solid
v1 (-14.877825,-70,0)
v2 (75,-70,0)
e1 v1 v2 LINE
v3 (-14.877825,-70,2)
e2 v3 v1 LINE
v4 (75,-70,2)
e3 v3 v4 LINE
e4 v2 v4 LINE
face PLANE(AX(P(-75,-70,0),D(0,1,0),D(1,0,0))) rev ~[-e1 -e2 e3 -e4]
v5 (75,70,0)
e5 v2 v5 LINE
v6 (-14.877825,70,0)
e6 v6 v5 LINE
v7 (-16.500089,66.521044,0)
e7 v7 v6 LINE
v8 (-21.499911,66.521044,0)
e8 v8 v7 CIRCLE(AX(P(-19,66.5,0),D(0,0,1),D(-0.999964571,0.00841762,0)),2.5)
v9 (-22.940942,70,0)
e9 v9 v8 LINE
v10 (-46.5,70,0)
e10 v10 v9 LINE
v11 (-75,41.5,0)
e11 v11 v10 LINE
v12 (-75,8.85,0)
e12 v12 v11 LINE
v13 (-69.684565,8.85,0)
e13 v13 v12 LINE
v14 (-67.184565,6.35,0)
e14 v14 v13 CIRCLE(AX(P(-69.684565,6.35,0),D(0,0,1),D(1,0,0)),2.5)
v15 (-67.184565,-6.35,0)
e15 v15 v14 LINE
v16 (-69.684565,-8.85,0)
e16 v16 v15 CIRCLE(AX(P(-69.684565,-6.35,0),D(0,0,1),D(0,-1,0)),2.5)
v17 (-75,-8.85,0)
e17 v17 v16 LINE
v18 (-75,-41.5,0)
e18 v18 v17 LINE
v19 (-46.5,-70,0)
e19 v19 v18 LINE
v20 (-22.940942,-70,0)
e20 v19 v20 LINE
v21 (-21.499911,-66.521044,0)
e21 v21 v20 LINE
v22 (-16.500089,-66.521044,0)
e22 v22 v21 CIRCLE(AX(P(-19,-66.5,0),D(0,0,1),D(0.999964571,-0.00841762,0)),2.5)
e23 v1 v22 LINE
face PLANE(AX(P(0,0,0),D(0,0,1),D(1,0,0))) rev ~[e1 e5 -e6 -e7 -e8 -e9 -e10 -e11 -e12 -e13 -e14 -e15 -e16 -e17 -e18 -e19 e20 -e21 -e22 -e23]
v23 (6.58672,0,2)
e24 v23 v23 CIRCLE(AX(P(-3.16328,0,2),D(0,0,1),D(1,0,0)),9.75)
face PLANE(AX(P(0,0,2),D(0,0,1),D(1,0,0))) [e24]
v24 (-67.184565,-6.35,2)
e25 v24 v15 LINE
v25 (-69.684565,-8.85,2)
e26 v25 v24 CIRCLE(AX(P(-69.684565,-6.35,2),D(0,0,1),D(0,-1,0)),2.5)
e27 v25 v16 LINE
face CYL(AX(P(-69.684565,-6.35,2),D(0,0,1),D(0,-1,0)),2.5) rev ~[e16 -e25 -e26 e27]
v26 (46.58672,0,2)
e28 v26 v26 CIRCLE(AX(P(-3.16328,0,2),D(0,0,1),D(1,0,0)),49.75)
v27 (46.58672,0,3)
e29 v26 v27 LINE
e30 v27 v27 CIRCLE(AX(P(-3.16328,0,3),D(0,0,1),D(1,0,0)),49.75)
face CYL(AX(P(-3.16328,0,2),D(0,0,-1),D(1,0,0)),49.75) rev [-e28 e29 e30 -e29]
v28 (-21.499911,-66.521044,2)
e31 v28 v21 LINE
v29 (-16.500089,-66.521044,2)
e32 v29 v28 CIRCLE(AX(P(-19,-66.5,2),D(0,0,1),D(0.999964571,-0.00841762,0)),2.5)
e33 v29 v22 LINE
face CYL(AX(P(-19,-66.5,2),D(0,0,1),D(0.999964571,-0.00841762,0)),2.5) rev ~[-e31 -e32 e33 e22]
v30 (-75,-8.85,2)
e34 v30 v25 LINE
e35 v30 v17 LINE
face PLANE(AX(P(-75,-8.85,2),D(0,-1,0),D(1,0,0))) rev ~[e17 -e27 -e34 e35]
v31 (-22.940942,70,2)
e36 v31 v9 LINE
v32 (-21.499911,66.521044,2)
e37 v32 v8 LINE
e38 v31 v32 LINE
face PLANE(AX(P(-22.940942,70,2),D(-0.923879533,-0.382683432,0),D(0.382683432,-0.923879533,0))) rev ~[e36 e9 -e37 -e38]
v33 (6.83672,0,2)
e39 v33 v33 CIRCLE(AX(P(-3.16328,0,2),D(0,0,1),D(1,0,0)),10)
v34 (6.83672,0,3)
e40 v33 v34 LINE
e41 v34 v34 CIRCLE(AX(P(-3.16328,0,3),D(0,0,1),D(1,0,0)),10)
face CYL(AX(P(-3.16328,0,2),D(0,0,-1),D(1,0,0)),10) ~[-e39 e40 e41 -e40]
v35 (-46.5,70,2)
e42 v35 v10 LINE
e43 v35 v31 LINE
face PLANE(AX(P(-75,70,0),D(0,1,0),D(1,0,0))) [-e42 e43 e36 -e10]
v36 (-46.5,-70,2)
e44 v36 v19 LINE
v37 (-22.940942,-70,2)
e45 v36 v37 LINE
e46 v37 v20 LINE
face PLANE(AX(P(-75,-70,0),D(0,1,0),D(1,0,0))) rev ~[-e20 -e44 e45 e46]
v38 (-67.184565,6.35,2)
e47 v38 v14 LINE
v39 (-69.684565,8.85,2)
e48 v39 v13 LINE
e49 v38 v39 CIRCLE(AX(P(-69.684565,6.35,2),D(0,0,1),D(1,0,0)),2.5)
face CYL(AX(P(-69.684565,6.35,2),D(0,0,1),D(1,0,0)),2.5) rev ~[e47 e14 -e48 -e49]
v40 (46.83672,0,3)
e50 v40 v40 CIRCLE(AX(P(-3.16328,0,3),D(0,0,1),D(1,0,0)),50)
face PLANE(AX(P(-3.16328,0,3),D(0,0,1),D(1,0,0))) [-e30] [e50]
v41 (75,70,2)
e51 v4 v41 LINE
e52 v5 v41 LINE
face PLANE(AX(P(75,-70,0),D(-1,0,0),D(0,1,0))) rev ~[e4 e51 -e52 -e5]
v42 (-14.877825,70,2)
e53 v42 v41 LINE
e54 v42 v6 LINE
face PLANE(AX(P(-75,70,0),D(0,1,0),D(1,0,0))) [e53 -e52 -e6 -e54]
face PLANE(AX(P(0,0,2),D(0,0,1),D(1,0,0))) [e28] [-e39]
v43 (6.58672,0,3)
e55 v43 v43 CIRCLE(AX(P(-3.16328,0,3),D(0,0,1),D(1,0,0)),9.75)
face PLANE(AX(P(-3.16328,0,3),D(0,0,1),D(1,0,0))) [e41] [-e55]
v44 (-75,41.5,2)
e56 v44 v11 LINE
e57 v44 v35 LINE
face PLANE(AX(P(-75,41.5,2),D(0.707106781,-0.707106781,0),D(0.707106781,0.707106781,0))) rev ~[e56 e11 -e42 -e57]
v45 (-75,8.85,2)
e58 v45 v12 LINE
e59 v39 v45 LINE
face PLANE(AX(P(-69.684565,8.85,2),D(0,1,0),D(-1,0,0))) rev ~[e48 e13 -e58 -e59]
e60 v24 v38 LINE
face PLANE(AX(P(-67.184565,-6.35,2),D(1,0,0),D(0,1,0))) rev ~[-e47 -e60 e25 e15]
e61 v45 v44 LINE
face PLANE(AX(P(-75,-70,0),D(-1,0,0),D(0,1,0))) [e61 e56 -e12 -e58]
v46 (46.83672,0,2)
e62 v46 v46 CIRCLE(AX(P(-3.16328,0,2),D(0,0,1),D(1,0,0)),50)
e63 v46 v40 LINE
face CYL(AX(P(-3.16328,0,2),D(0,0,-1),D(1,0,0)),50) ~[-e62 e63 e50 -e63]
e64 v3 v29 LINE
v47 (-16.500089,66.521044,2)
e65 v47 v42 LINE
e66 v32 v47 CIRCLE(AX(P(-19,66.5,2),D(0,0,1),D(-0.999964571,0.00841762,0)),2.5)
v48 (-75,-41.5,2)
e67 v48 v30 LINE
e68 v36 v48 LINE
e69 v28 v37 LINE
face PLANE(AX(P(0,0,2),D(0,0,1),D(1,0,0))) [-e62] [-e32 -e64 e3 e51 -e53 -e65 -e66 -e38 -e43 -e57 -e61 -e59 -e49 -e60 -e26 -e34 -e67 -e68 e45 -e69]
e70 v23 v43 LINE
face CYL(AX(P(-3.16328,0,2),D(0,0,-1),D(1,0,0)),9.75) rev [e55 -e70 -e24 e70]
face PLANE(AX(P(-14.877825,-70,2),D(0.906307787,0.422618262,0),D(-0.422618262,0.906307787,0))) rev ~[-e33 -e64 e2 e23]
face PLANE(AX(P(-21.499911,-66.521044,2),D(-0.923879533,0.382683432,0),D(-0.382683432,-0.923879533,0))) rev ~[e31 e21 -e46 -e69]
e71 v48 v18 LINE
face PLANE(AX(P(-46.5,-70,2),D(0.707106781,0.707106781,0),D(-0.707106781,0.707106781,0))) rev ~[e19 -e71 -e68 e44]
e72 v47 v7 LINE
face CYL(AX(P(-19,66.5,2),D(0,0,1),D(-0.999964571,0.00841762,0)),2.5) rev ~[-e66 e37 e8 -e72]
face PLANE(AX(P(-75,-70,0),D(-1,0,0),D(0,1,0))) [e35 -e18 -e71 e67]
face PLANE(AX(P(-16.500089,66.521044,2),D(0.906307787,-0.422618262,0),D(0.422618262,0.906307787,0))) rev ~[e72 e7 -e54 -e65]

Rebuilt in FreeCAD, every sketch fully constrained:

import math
import FreeCAD as App
import Part
import Sketcher

V = App.Vector
Q = App.Units.Quantity

doc = App.newDocument("Part")
body = doc.addObject("PartDesign::Body", "Body")

# Sketch on XY plane
sketch1 = body.newObject("Sketcher::SketchObject", "Sketch")
sketch1.AttachmentSupport = (doc.getObject("XY_Plane"), [""])
sketch1.MapMode = "FlatFace"
sketch1.addGeometry([
    Part.LineSegment(V(-75, 70, 0), V(-75, -70, 0)),
    Part.LineSegment(V(-75, -70, 0), V(75, -70, 0)),
    Part.LineSegment(V(75, -70, 0), V(75, 70, 0)),
    Part.LineSegment(V(75, 70, 0), V(-75, 70, 0)),
], False)
sketch1.addConstraint([
    Sketcher.Constraint("Coincident", 0, 2, 1, 1),
    Sketcher.Constraint("Coincident", 1, 2, 2, 1),
    Sketcher.Constraint("Coincident", 2, 2, 3, 1),
    Sketcher.Constraint("Coincident", 3, 2, 0, 1),
    Sketcher.Constraint("Vertical", 0),
    Sketcher.Constraint("Horizontal", 1),
    Sketcher.Constraint("Vertical", 2),
    Sketcher.Constraint("Horizontal", 3),
    Sketcher.Constraint("Symmetric", 0, 2, 2, 2, -1, 1),
    Sketcher.Constraint("DistanceX", 1, 1, 1, 2, 150.0),
    Sketcher.Constraint("DistanceY", 0, 2, 0, 1, 140.0),
])
pad1 = body.newObject("PartDesign::Pad", "Pad")
pad1.Profile = sketch1
pad1.Length = 2

# Sketch on XY plane
sketch2 = body.newObject("Sketcher::SketchObject", "Sketch001")
sketch2.AttachmentSupport = (doc.getObject("XY_Plane"), [""])
sketch2.MapMode = "FlatFace"
sketch2.AttachmentOffset = App.Placement(V(0, 0, 2), App.Rotation())
sketch2.addGeometry([
    Part.LineSegment(V(-75, 70, 0), V(-75, 41.5, 0)),  # 0
    Part.LineSegment(V(-75, 41.5, 0), V(-46.5, 70, 0)),  # 1
    Part.LineSegment(V(-46.5, 70, 0), V(-75, 70, 0)),  # 2
    Part.LineSegment(V(-46.5, -70, 0), V(-75, -41.5, 0)),  # 3
    Part.LineSegment(V(-75, -41.5, 0), V(-75, -70, 0)),  # 4
    Part.LineSegment(V(-75, -70, 0), V(-46.5, -70, 0)),  # 5
    Part.LineSegment(V(-67.184565, -6.35, 0), V(-67.184565, 6.35, 0)),  # 6
    Part.ArcOfCircle(Part.Circle(V(-69.684565, 6.35, 0), V(0, 0, 1), 2.5), math.radians(0), math.radians(90)),  # 7
    Part.LineSegment(V(-69.684565, 8.85, 0), V(-75, 8.85, 0)),  # 8
    Part.LineSegment(V(-75, 8.85, 0), V(-75, -8.85, 0)),  # 9
    Part.LineSegment(V(-75, -8.85, 0), V(-69.684565, -8.85, 0)),  # 10
    Part.ArcOfCircle(Part.Circle(V(-69.684565, -6.35, 0), V(0, 0, 1), 2.5), math.radians(-90), math.radians(0)),  # 11
    Part.LineSegment(V(-21.499911, -66.521044, 0), V(-22.940942, -70, 0)),  # 12
    Part.LineSegment(V(-22.940942, -70, 0), V(-14.877825, -70, 0)),  # 13
    Part.LineSegment(V(-14.877825, -70, 0), V(-16.500089, -66.521044, 0)),  # 14
    Part.ArcOfCircle(Part.Circle(V(-19, -66.5, 0), V(0, 0, 1), 2.5), math.radians(-0.4823), math.radians(180.4823)),  # 15
    Part.LineSegment(V(-14.877825, 70, 0), V(-22.940942, 70, 0)),  # 16
    Part.LineSegment(V(-22.940942, 70, 0), V(-21.499911, 66.521044, 0)),  # 17
    Part.ArcOfCircle(Part.Circle(V(-19, 66.5, 0), V(0, 0, 1), 2.5), math.radians(179.5177), math.radians(360.4823)),  # 18
    Part.LineSegment(V(-16.500089, 66.521044, 0), V(-14.877825, 70, 0)),  # 19
], False)
sketch2.addConstraint([
    Sketcher.Constraint("Coincident", 0, 2, 1, 1),
    Sketcher.Constraint("Coincident", 1, 2, 2, 1),
    Sketcher.Constraint("Coincident", 2, 2, 0, 1),
    Sketcher.Constraint("Coincident", 3, 2, 4, 1),
    Sketcher.Constraint("Coincident", 4, 2, 5, 1),
    Sketcher.Constraint("Coincident", 5, 2, 3, 1),
    Sketcher.Constraint("Tangent", 6, 2, 7, 1),
    Sketcher.Constraint("Tangent", 7, 2, 8, 1),
    Sketcher.Constraint("Coincident", 8, 2, 9, 1),
    Sketcher.Constraint("Coincident", 9, 2, 10, 1),
    Sketcher.Constraint("Tangent", 10, 2, 11, 1),
    Sketcher.Constraint("Tangent", 11, 2, 6, 1),
    Sketcher.Constraint("Coincident", 12, 2, 13, 1),
    Sketcher.Constraint("Coincident", 13, 2, 14, 1),
    Sketcher.Constraint("Coincident", 14, 2, 15, 1),
    Sketcher.Constraint("Coincident", 15, 2, 12, 1),
    Sketcher.Constraint("Coincident", 16, 2, 17, 1),
    Sketcher.Constraint("Coincident", 17, 2, 18, 1),
    Sketcher.Constraint("Coincident", 18, 2, 19, 1),
    Sketcher.Constraint("Coincident", 19, 2, 16, 1),
    Sketcher.Constraint("Vertical", 0),
    Sketcher.Constraint("Horizontal", 2),
    Sketcher.Constraint("Vertical", 4),
    Sketcher.Constraint("Horizontal", 5),
    Sketcher.Constraint("Vertical", 6),
    Sketcher.Constraint("Horizontal", 8),
    Sketcher.Constraint("Vertical", 9),
    Sketcher.Constraint("Horizontal", 10),
    Sketcher.Constraint("Horizontal", 13),
    Sketcher.Constraint("Horizontal", 16),
    Sketcher.Constraint("Equal", 7, 11),
    Sketcher.Constraint("Equal", 11, 15),
    Sketcher.Constraint("Equal", 15, 18),
    Sketcher.Constraint("Symmetric", 15, 3, 18, 3, -1),
    Sketcher.Constraint("Symmetric", 0, 2, 3, 2, -1),
    Sketcher.Constraint("Symmetric", 1, 2, 5, 2, -1),
    Sketcher.Constraint("Symmetric", 12, 2, 16, 2, -1),
    Sketcher.Constraint("Perpendicular", 1, 3),
    Sketcher.Constraint("Horizontal", 5, 2, 12, 2),
    Sketcher.Constraint("Horizontal", 14, 2, 15, 2),
    Sketcher.Constraint("Horizontal", 17, 2, 18, 2),
    Sketcher.Constraint("Vertical", 4, 2, 8, 2),
    Sketcher.Constraint("Vertical", 15, 2, 17, 2),
    Sketcher.Constraint("Vertical", 13, 2, 19, 2),
    Sketcher.Constraint("Radius", 7, 2.5),
    Sketcher.Constraint("Angle", 14, Q("115 deg")),
    Sketcher.Constraint("DistanceX", 2, 2, 2, 1, 28.5),
    Sketcher.Constraint("DistanceY", 6, 1, 6, 2, 12.7),
    Sketcher.Constraint("DistanceX", 15, 3, -1, 1, 19.0),
    Sketcher.Constraint("DistanceX", 0, 2, -1, 1, 75.0),
    Sketcher.Constraint("DistanceY", -1, 1, 1, 2, 70.0),
    Sketcher.Constraint("Angle", 12, Q("-112.5 deg")),
    Sketcher.Constraint("DistanceY", 15, 3, 18, 3, 133.0),
    Sketcher.Constraint("DistanceY", -1, 1, 7, 3, 6.35),
    Sketcher.Constraint("DistanceX", 8, 2, 8, 1, 5.315435),
    Sketcher.Constraint("DistanceX", 13, 1, 13, 2, 8.063117),
])
pocket1 = body.newObject("PartDesign::Pocket", "Pocket")
pocket1.Profile = sketch2
pocket1.Length = 5

# Sketch on XY plane
sketch3 = body.newObject("Sketcher::SketchObject", "Sketch002")
sketch3.AttachmentSupport = (doc.getObject("XY_Plane"), [""])
sketch3.MapMode = "FlatFace"
sketch3.AttachmentOffset = App.Placement(V(0, 0, 2), App.Rotation())
sketch3.addGeometry([
    Part.Circle(V(-3.16328, 0, 0), V(0, 0, 1), 50),
    Part.Circle(V(-3.16328, 0, 0), V(0, 0, 1), 49.75),
], False)
sketch3.addConstraint([
    Sketcher.Constraint("Coincident", 1, 3, 0, 3),
    Sketcher.Constraint("PointOnObject", 0, 3, -1),
    Sketcher.Constraint("Diameter", 0, 100.0),
    Sketcher.Constraint("Diameter", 1, 99.5),
    Sketcher.Constraint("DistanceX", 0, 3, -1, 1, 3.16328),
])
pad2 = body.newObject("PartDesign::Pad", "Pad001")
pad2.Profile = sketch3
pad2.Length = 1

# Sketch on XY plane
sketch4 = body.newObject("Sketcher::SketchObject", "Sketch003")
sketch4.AttachmentSupport = (doc.getObject("XY_Plane"), [""])
sketch4.MapMode = "FlatFace"
sketch4.AttachmentOffset = App.Placement(V(0, 0, 2), App.Rotation())
sketch4.addGeometry([
    Part.Circle(V(-3.16328, 0, 0), V(0, 0, 1), 10),
    Part.Circle(V(-3.16328, 0, 0), V(0, 0, 1), 9.75),
], False)
sketch4.addConstraint([
    Sketcher.Constraint("Coincident", 1, 3, 0, 3),
    Sketcher.Constraint("PointOnObject", 0, 3, -1),
    Sketcher.Constraint("Diameter", 0, 20.0),
    Sketcher.Constraint("Diameter", 1, 19.5),
    Sketcher.Constraint("DistanceX", 0, 3, -1, 1, 3.16328),
])
pad3 = body.newObject("PartDesign::Pad", "Pad002")
pad3.Profile = sketch4
pad3.Length = 1

doc.recompute()
